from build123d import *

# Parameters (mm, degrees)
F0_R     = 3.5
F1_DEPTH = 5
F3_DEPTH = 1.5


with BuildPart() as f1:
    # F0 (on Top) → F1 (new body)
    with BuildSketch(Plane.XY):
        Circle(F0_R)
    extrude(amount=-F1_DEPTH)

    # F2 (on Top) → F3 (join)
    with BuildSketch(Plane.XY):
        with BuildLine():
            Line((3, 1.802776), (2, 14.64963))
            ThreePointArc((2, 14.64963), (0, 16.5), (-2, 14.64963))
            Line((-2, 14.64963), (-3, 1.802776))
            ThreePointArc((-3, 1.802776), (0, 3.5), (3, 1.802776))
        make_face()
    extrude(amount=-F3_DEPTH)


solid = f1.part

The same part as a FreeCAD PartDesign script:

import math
import FreeCAD as App
import Part
import Sketcher
from FreeCAD import Vector

doc = App.newDocument("Part")
body = doc.addObject("PartDesign::Body", "Body")

# Sketch on XY plane
sketch1 = doc.addObject("Sketcher::SketchObject", "Sketch")
body.addObject(sketch1)
sketch1.AttachmentSupport = (doc.XY_Plane, [""])
sketch1.MapMode = "FlatFace"
sketch1.addGeometry(Part.Circle(Vector(0, 0, 0), Vector(0, 0, 1), 3.5), False)
sketch1.addConstraint([
    Sketcher.Constraint("Coincident", 0, 3, -1, 1),
    Sketcher.Constraint("Diameter", 0, 7.0),
])
pad1 = doc.addObject("PartDesign::Pad", "Pad")
body.addObject(pad1)
pad1.Profile = sketch1
pad1.Length = 5
pad1.Reversed = True

# Sketch on XY plane
sketch2 = doc.addObject("Sketcher::SketchObject", "Sketch001")
body.addObject(sketch2)
sketch2.AttachmentSupport = (doc.XY_Plane, [""])
sketch2.MapMode = "FlatFace"
sketch2.addGeometry([
    Part.LineSegment(Vector(3, 1.8, 0), Vector(2, 14.6, 0)),
    Part.ArcOfCircle(Part.Circle(Vector(0, 14.5, 0), Vector(0, 0, 1), 2), math.radians(4), math.radians(176)),
    Part.LineSegment(Vector(-2, 14.6, 0), Vector(-3, 1.8, 0)),
    Part.ArcOfCircle(Part.Circle(Vector(0, 0, 0), Vector(0, 0, 1), 3.5), math.radians(31), math.radians(149)),
], False)
sketch2.addConstraint([
    Sketcher.Constraint("Tangent", 0, 2, 1, 1),
    Sketcher.Constraint("Tangent", 1, 2, 2, 1),
    Sketcher.Constraint("Coincident", 2, 2, 3, 2),
    Sketcher.Constraint("Coincident", 3, 1, 0, 1),
    Sketcher.Constraint("Coincident", 3, 3, -1, 1),
    Sketcher.Constraint("Symmetric", 0, 2, 1, 2, -2),
    Sketcher.Constraint("Radius", 3, 3.5),
    Sketcher.Constraint("DistanceX", -1, 1, 0, 2, 2.0),
    Sketcher.Constraint("DistanceX", 2, 2, -1, 1, 3.0),
    Sketcher.Constraint("DistanceY", -1, 1, 1, 3, 14.49395),
])
pad2 = doc.addObject("PartDesign::Pad", "Pad001")
body.addObject(pad2)
pad2.Profile = sketch2
pad2.Length = 1.5
pad2.Reversed = True

doc.recompute()
